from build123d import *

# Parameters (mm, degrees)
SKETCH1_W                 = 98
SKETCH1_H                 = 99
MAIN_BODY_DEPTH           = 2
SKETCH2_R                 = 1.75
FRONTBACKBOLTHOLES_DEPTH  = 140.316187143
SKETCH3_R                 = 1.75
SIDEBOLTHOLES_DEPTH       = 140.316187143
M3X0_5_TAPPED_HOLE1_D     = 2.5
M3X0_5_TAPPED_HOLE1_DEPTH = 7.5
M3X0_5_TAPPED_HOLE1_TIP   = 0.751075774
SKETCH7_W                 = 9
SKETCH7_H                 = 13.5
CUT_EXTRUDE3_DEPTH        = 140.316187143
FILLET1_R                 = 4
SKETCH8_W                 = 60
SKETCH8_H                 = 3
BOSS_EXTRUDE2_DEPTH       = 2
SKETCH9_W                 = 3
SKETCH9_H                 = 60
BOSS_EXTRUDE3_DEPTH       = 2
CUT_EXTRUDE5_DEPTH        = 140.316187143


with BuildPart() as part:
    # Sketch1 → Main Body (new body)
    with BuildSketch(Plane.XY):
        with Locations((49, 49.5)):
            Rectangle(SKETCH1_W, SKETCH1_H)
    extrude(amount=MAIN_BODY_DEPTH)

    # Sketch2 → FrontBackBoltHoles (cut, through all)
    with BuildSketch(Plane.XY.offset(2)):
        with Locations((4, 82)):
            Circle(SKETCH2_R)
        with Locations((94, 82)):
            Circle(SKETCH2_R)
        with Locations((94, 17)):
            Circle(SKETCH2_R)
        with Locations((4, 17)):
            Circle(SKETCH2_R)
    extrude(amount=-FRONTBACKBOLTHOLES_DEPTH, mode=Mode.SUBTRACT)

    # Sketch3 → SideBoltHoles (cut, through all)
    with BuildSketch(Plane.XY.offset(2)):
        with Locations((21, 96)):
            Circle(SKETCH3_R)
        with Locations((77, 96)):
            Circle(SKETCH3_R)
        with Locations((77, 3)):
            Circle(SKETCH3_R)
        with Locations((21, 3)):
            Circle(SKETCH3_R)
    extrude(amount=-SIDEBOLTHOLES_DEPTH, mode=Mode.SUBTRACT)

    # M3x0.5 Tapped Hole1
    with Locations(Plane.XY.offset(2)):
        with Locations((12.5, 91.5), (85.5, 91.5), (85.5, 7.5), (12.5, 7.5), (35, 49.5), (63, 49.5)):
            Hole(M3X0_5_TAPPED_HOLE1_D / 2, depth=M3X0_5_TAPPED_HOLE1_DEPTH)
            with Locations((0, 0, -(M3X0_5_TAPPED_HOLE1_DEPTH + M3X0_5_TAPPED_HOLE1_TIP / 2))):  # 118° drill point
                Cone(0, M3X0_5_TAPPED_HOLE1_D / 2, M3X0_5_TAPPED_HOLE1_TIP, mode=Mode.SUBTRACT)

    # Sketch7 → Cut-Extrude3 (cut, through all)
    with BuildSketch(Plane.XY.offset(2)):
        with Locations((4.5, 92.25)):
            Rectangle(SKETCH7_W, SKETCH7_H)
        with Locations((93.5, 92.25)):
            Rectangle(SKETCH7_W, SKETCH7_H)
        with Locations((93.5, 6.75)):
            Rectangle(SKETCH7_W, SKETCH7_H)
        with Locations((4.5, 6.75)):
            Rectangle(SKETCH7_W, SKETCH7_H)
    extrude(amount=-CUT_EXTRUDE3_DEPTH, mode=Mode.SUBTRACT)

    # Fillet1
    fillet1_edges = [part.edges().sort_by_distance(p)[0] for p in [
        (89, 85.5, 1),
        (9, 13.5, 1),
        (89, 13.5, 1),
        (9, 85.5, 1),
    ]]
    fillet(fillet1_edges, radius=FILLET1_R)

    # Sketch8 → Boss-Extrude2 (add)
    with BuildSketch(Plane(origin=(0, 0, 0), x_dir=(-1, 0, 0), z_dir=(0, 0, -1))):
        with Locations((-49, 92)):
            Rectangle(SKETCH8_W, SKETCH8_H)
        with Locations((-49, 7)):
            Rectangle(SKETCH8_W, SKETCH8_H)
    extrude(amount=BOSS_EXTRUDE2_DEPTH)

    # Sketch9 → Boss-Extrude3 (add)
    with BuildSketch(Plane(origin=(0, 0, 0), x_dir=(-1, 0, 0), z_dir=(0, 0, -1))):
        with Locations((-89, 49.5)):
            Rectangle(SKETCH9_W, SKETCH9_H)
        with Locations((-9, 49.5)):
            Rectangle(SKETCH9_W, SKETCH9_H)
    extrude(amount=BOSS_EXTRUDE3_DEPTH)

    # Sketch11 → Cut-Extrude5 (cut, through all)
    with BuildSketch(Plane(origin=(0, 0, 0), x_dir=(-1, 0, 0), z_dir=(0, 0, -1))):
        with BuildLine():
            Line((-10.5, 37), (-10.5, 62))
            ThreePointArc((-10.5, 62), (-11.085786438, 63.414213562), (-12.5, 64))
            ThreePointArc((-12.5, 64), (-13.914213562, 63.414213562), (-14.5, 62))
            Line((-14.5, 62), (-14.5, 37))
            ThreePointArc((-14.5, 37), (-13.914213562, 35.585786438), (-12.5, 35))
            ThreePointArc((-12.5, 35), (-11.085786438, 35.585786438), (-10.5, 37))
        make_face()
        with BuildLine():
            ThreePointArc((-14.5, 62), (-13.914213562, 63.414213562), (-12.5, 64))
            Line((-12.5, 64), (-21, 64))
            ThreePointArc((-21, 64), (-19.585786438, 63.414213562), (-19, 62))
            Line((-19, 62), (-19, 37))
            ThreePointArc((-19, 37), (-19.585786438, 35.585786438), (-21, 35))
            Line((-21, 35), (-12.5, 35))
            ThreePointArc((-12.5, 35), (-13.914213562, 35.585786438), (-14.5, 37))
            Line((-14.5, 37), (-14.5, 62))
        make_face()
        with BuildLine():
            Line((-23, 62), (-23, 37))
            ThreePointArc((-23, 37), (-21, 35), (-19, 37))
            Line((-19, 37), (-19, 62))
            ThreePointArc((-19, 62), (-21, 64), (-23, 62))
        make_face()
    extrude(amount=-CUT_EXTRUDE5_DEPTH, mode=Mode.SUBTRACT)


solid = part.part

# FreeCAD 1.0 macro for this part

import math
import FreeCAD as App
import Part
import Sketcher

V = App.Vector
Q = App.Units.Quantity


def edges_at(feature, points):
    """Names of the edges that pass closest to the given points."""
    edges = feature.Shape.Edges
    near = lambda p: min(range(len(edges)), key=lambda i: edges[i].distToShape(Part.Vertex(*p))[0])
    return sorted({f"Edge{near(p) + 1}" for p in points})


def add_polygon(sketch, points):
    """Adds a closed chain of lines whose ends are joined by coincident constraints."""
    first, n = sketch.GeometryCount, len(points)
    for a, b in zip(points, points[1:] + points[:1]):
        sketch.addGeometry(Part.LineSegment(App.Vector(*a, 0), App.Vector(*b, 0)), False)
    for i in range(n):
        sketch.addConstraint(Sketcher.Constraint("Coincident", first + i, 2, first + (i + 1) % n, 1))

doc = App.newDocument("Part")
body = doc.addObject("PartDesign::Body", "Body")

sketch1 = body.newObject("Sketcher::SketchObject", "Sketch")
sketch1.AttachmentSupport = (doc.getObject("XY_Plane"), [""])
sketch1.MapMode = "FlatFace"
add_polygon(sketch1, [(0, 99), (0, 0), (98, 0), (98, 99)])
sketch1.addConstraint(Sketcher.Constraint("Vertical", 0))
sketch1.addConstraint(Sketcher.Constraint("Horizontal", 1))
sketch1.addConstraint(Sketcher.Constraint("Vertical", 2))
sketch1.addConstraint(Sketcher.Constraint("Horizontal", 3))
sketch1.addConstraint(Sketcher.Constraint("Coincident", 0, 2, -1, 1))
sketch1.addConstraint(Sketcher.Constraint("DistanceX", 1, 1, 1, 2, Q("98 mm")))
sketch1.addConstraint(Sketcher.Constraint("DistanceY", 0, 2, 0, 1, Q("99 mm")))
pad1 = body.newObject("PartDesign::Pad", "Pad")
pad1.Profile = sketch1
pad1.Length = 2

sketch2 = body.newObject("Sketcher::SketchObject", "Sketch001")
sketch2.AttachmentSupport = (doc.getObject("XY_Plane"), [""])
sketch2.MapMode = "FlatFace"
sketch2.AttachmentOffset = App.Placement(V(0, 0, 2), App.Rotation())
sketch2.addGeometry(Part.Circle(V(4, 82, 0), V(0, 0, 1), 1.8), False)
sketch2.addGeometry(Part.Circle(V(94, 82, 0), V(0, 0, 1), 1.8), False)
sketch2.addGeometry(Part.Circle(V(94, 17, 0), V(0, 0, 1), 1.8), False)
sketch2.addGeometry(Part.Circle(V(4, 17, 0), V(0, 0, 1), 1.8), False)
sketch2.addConstraint(Sketcher.Constraint("Equal", 0, 1))
sketch2.addConstraint(Sketcher.Constraint("Equal", 1, 2))
sketch2.addConstraint(Sketcher.Constraint("Equal", 2, 3))
sketch2.addConstraint(Sketcher.Constraint("Horizontal", 0, 3, 1, 3))
sketch2.addConstraint(Sketcher.Constraint("Horizontal", 2, 3, 3, 3))
sketch2.addConstraint(Sketcher.Constraint("Vertical", 1, 3, 2, 3))
sketch2.addConstraint(Sketcher.Constraint("Vertical", 0, 3, 3, 3))
sketch2.addConstraint(Sketcher.Constraint("Diameter", 0, Q("3.5 mm")))
sketch2.addConstraint(Sketcher.Constraint("DistanceX", -1, 1, 0, 3, Q("4 mm")))
sketch2.addConstraint(Sketcher.Constraint("DistanceY", -1, 1, 0, 3, Q("82 mm")))
sketch2.addConstraint(Sketcher.Constraint("DistanceX", -1, 1, 1, 3, Q("94 mm")))
sketch2.addConstraint(Sketcher.Constraint("DistanceY", -1, 1, 2, 3, Q("17 mm")))
pocket1 = body.newObject("PartDesign::Pocket", "Pocket")
pocket1.Profile = sketch2
pocket1.Type = "ThroughAll"

sketch3 = body.newObject("Sketcher::SketchObject", "Sketch002")
sketch3.AttachmentSupport = (doc.getObject("XY_Plane"), [""])
sketch3.MapMode = "FlatFace"
sketch3.AttachmentOffset = App.Placement(V(0, 0, 2), App.Rotation())
sketch3.addGeometry(Part.Circle(V(21, 96, 0), V(0, 0, 1), 1.8), False)
sketch3.addGeometry(Part.Circle(V(77, 96, 0), V(0, 0, 1), 1.8), False)
sketch3.addGeometry(Part.Circle(V(77, 3, 0), V(0, 0, 1), 1.8), False)
sketch3.addGeometry(Part.Circle(V(21, 3, 0), V(0, 0, 1), 1.8), False)
sketch3.addConstraint(Sketcher.Constraint("Equal", 0, 1))
sketch3.addConstraint(Sketcher.Constraint("Equal", 1, 2))
sketch3.addConstraint(Sketcher.Constraint("Equal", 2, 3))
sketch3.addConstraint(Sketcher.Constraint("Horizontal", 0, 3, 1, 3))
sketch3.addConstraint(Sketcher.Constraint("Horizontal", 2, 3, 3, 3))
sketch3.addConstraint(Sketcher.Constraint("Vertical", 1, 3, 2, 3))
sketch3.addConstraint(Sketcher.Constraint("Vertical", 0, 3, 3, 3))
sketch3.addConstraint(Sketcher.Constraint("Diameter", 0, Q("3.5 mm")))
sketch3.addConstraint(Sketcher.Constraint("DistanceX", -1, 1, 0, 3, Q("21 mm")))
sketch3.addConstraint(Sketcher.Constraint("DistanceY", -1, 1, 0, 3, Q("96 mm")))
sketch3.addConstraint(Sketcher.Constraint("DistanceX", -1, 1, 1, 3, Q("77 mm")))
sketch3.addConstraint(Sketcher.Constraint("DistanceY", -1, 1, 2, 3, Q("3 mm")))
pocket2 = body.newObject("PartDesign::Pocket", "Pocket001")
pocket2.Profile = sketch3
pocket2.Type = "ThroughAll"

sketch4 = body.newObject("Sketcher::SketchObject", "Sketch003")
sketch4.AttachmentSupport = (doc.getObject("XY_Plane"), [""])
sketch4.MapMode = "FlatFace"
sketch4.AttachmentOffset = App.Placement(V(0, 0, 2), App.Rotation())
sketch4.addGeometry(Part.Circle(V(12.5, 91.5, 0), V(0, 0, 1), 1.2), False)
sketch4.addGeometry(Part.Circle(V(85.5, 91.5, 0), V(0, 0, 1), 1.2), False)
sketch4.addGeometry(Part.Circle(V(85.5, 7.5, 0), V(0, 0, 1), 1.2), False)
sketch4.addGeometry(Part.Circle(V(12.5, 7.5, 0), V(0, 0, 1), 1.2), False)
sketch4.addGeometry(Part.Circle(V(35, 49.5, 0), V(0, 0, 1), 1.2), False)
sketch4.addGeometry(Part.Circle(V(63, 49.5, 0), V(0, 0, 1), 1.2), False)
sketch4.addConstraint(Sketcher.Constraint("Equal", 0, 1))
sketch4.addConstraint(Sketcher.Constraint("Equal", 1, 2))
sketch4.addConstraint(Sketcher.Constraint("Equal", 2, 3))
sketch4.addConstraint(Sketcher.Constraint("Equal", 3, 4))
sketch4.addConstraint(Sketcher.Constraint("Equal", 4, 5))
sketch4.addConstraint(Sketcher.Constraint("Horizontal", 0, 3, 1, 3))
sketch4.addConstraint(Sketcher.Constraint("Horizontal", 2, 3, 3, 3))
sketch4.addConstraint(Sketcher.Constraint("Horizontal", 4, 3, 5, 3))
sketch4.addConstraint(Sketcher.Constraint("Vertical", 1, 3, 2, 3))
sketch4.addConstraint(Sketcher.Constraint("Vertical", 0, 3, 3, 3))
sketch4.addConstraint(Sketcher.Constraint("Diameter", 0, Q("2.5 mm")))
sketch4.addConstraint(Sketcher.Constraint("DistanceX", -1, 1, 4, 3, Q("35 mm")))
sketch4.addConstraint(Sketcher.Constraint("DistanceX", -1, 1, 5, 3, Q("63 mm")))
sketch4.addConstraint(Sketcher.Constraint("DistanceX", 0, 3, 1, 3, Q("73 mm")))
sketch4.addConstraint(Sketcher.Constraint("DistanceY", 2, 3, 1, 3, Q("84 mm")))
sketch4.addConstraint(Sketcher.Constraint("DistanceY", 4, 3, 0, 3, Q("42 mm")))
sketch4.addConstraint(Sketcher.Constraint("DistanceX", -1, 1, 0, 3, Q("12.5 mm")))
sketch4.addConstraint(Sketcher.Constraint("DistanceY", -1, 1, 0, 3, Q("91.5 mm")))
doc.recompute()
hole = body.newObject("PartDesign::Hole", "Hole")
hole.Profile = sketch4
hole.ThreadType = "None"
hole.Diameter = 2.5
hole.DepthType = "Dimension"
hole.Depth = 7.5
hole.DrillPoint = "Angled"
hole.DrillPointAngle = 118

sketch5 = body.newObject("Sketcher::SketchObject", "Sketch004")
sketch5.AttachmentSupport = (doc.getObject("XY_Plane"), [""])
sketch5.MapMode = "FlatFace"
sketch5.AttachmentOffset = App.Placement(V(0, 0, 2), App.Rotation())
add_polygon(sketch5, [(0, 99), (0, 86), (9, 86), (9, 99)])
add_polygon(sketch5, [(89, 99), (89, 86), (98, 86), (98, 99)])
add_polygon(sketch5, [(89, 14), (89, 0), (98, 0), (98, 14)])
add_polygon(sketch5, [(0, 14), (0, 0), (9, 0), (9, 14)])
sketch5.addConstraint(Sketcher.Constraint("Vertical", 0))
sketch5.addConstraint(Sketcher.Constraint("Horizontal", 1))
sketch5.addConstraint(Sketcher.Constraint("Vertical", 2))
sketch5.addConstraint(Sketcher.Constraint("Horizontal", 3))
sketch5.addConstraint(Sketcher.Constraint("Vertical", 4))
sketch5.addConstraint(Sketcher.Constraint("Horizontal", 5))
sketch5.addConstraint(Sketcher.Constraint("Vertical", 6))
sketch5.addConstraint(Sketcher.Constraint("Horizontal", 7))
sketch5.addConstraint(Sketcher.Constraint("Vertical", 8))
sketch5.addConstraint(Sketcher.Constraint("Horizontal", 9))
sketch5.addConstraint(Sketcher.Constraint("Vertical", 10))
sketch5.addConstraint(Sketcher.Constraint("Horizontal", 11))
sketch5.addConstraint(Sketcher.Constraint("Vertical", 12))
sketch5.addConstraint(Sketcher.Constraint("Horizontal", 13))
sketch5.addConstraint(Sketcher.Constraint("Vertical", 14))
sketch5.addConstraint(Sketcher.Constraint("Horizontal", 15))
sketch5.addConstraint(Sketcher.Constraint("Coincident", 12, 2, -1, 1))
sketch5.addConstraint(Sketcher.Constraint("PointOnObject", 0, 2, -2))
sketch5.addConstraint(Sketcher.Constraint("PointOnObject", 8, 2, -1))
sketch5.addConstraint(Sketcher.Constraint("Horizontal", 1, 2, 4, 2))
sketch5.addConstraint(Sketcher.Constraint("Horizontal", 3, 2, 6, 2))
sketch5.addConstraint(Sketcher.Constraint("Horizontal", 11, 2, 14, 2))
sketch5.addConstraint(Sketcher.Constraint("Vertical", 7, 2, 8, 2))
sketch5.addConstraint(Sketcher.Constraint("Vertical", 6, 2, 9, 2))
sketch5.addConstraint(Sketcher.Constraint("Vertical", 2, 2, 13, 2))
sketch5.addConstraint(Sketcher.Constraint("Equal", 3, 5))
sketch5.addConstraint(Sketcher.Constraint("Equal", 6, 8))
sketch5.addConstraint(Sketcher.Constraint("DistanceX", 1, 1, 1, 2, Q("9 mm")))
sketch5.addConstraint(Sketcher.Constraint("DistanceY", 0, 2, 0, 1, Q("13.5 mm")))
sketch5.addConstraint(Sketcher.Constraint("DistanceY", -1, 1, 2, 2, Q("99 mm")))
sketch5.addConstraint(Sketcher.Constraint("DistanceX", -1, 1, 4, 2, Q("89 mm")))
pocket3 = body.newObject("PartDesign::Pocket", "Pocket002")
pocket3.Profile = sketch5
pocket3.Type = "ThroughAll"
doc.recompute()

fillet = body.newObject("PartDesign::Fillet", "Fillet")
fillet.Base = (pocket3, edges_at(pocket3, [
    (89, 85.5, 1),
    (9, 13.5, 1),
    (89, 13.5, 1),
    (9, 85.5, 1),
]))
fillet.Radius = 4

sketch6 = body.newObject("Sketcher::SketchObject", "Sketch005")
sketch6.AttachmentSupport = (doc.getObject("XY_Plane"), [""])
sketch6.MapMode = "FlatFace"
add_polygon(sketch6, [(79, 93.5), (79, 90.5), (19, 90.5), (19, 93.5)])
add_polygon(sketch6, [(79, 8.5), (79, 5.5), (19, 5.5), (19, 8.5)])
sketch6.addConstraint(Sketcher.Constraint("Vertical", 0))
sketch6.addConstraint(Sketcher.Constraint("Horizontal", 1))
sketch6.addConstraint(Sketcher.Constraint("Vertical", 2))
sketch6.addConstraint(Sketcher.Constraint("Horizontal", 3))
sketch6.addConstraint(Sketcher.Constraint("Vertical", 4))
sketch6.addConstraint(Sketcher.Constraint("Horizontal", 5))
sketch6.addConstraint(Sketcher.Constraint("Vertical", 6))
sketch6.addConstraint(Sketcher.Constraint("Horizontal", 7))
sketch6.addConstraint(Sketcher.Constraint("Vertical", 3, 2, 4, 2))
sketch6.addConstraint(Sketcher.Constraint("Vertical", 2, 2, 5, 2))
sketch6.addConstraint(Sketcher.Constraint("Equal", 2, 4))
sketch6.addConstraint(Sketcher.Constraint("DistanceX", 1, 2, 1, 1, Q("60 mm")))
sketch6.addConstraint(Sketcher.Constraint("DistanceY", 0, 2, 0, 1, Q("3 mm")))
sketch6.addConstraint(Sketcher.Constraint("DistanceX", -1, 1, 0, 2, Q("79 mm")))
sketch6.addConstraint(Sketcher.Constraint("DistanceY", 4, 2, 0, 2, Q("85 mm")))
sketch6.addConstraint(Sketcher.Constraint("DistanceY", -1, 1, 0, 2, Q("90.5 mm")))
pad2 = body.newObject("PartDesign::Pad", "Pad001")
pad2.Profile = sketch6
pad2.Length = 2
pad2.Reversed = True

sketch7 = body.newObject("Sketcher::SketchObject", "Sketch006")
sketch7.AttachmentSupport = (doc.getObject("XY_Plane"), [""])
sketch7.MapMode = "FlatFace"
add_polygon(sketch7, [(90.5, 79.5), (90.5, 19.5), (87.5, 19.5), (87.5, 79.5)])
add_polygon(sketch7, [(10.5, 79.5), (10.5, 19.5), (7.5, 19.5), (7.5, 79.5)])
sketch7.addConstraint(Sketcher.Constraint("Vertical", 0))
sketch7.addConstraint(Sketcher.Constraint("Horizontal", 1))
sketch7.addConstraint(Sketcher.Constraint("Vertical", 2))
sketch7.addConstraint(Sketcher.Constraint("Horizontal", 3))
sketch7.addConstraint(Sketcher.Constraint("Vertical", 4))
sketch7.addConstraint(Sketcher.Constraint("Horizontal", 5))
sketch7.addConstraint(Sketcher.Constraint("Vertical", 6))
sketch7.addConstraint(Sketcher.Constraint("Horizontal", 7))
sketch7.addConstraint(Sketcher.Constraint("Horizontal", 1, 2, 4, 2))
sketch7.addConstraint(Sketcher.Constraint("Horizontal", 3, 2, 6, 2))
sketch7.addConstraint(Sketcher.Constraint("Equal", 3, 5))
sketch7.addConstraint(Sketcher.Constraint("DistanceX", 1, 2, 1, 1, Q("3 mm")))
sketch7.addConstraint(Sketcher.Constraint("DistanceY", 0, 2, 0, 1, Q("60 mm")))
sketch7.addConstraint(Sketcher.Constraint("DistanceX", 4, 2, 1, 2, Q("77 mm")))
sketch7.addConstraint(Sketcher.Constraint("DistanceX", -1, 1, 0, 2, Q("90.5 mm")))
sketch7.addConstraint(Sketcher.Constraint("DistanceY", -1, 1, 0, 2, Q("19.5 mm")))
pad3 = body.newObject("PartDesign::Pad", "Pad002")
pad3.Profile = sketch7
pad3.Length = 2
pad3.Reversed = True

sketch8 = body.newObject("Sketcher::SketchObject", "Sketch007")
sketch8.AttachmentSupport = (doc.getObject("XY_Plane"), [""])
sketch8.MapMode = "FlatFace"
sketch8.addGeometry(Part.LineSegment(V(10.5, 37, 0), V(10.5, 62, 0)), False)
sketch8.addGeometry(Part.ArcOfCircle(Part.Circle(V(12.5, 62, 0), V(0, 0, 1), 2), math.radians(90), math.radians(180)), False)
sketch8.addGeometry(Part.LineSegment(V(12.5, 64, 0), V(21, 64, 0)), False)
sketch8.addGeometry(Part.ArcOfCircle(Part.Circle(V(21, 62, 0), V(0, 0, 1), 2), math.radians(0), math.radians(90)), False)
sketch8.addGeometry(Part.LineSegment(V(23, 62, 0), V(23, 37, 0)), False)
sketch8.addGeometry(Part.ArcOfCircle(Part.Circle(V(21, 37, 0), V(0, 0, 1), 2), math.radians(-90), math.radians(0)), False)
sketch8.addGeometry(Part.LineSegment(V(21, 35, 0), V(12.5, 35, 0)), False)
sketch8.addGeometry(Part.ArcOfCircle(Part.Circle(V(12.5, 37, 0), V(0, 0, 1), 2), math.radians(-180), math.radians(-90)), False)
sketch8.addConstraint(Sketcher.Constraint("Tangent", 0, 2, 1, 2))
sketch8.addConstraint(Sketcher.Constraint("Tangent", 1, 1, 2, 1))
sketch8.addConstraint(Sketcher.Constraint("Tangent", 2, 2, 3, 2))
sketch8.addConstraint(Sketcher.Constraint("Tangent", 3, 1, 4, 1))
sketch8.addConstraint(Sketcher.Constraint("Tangent", 4, 2, 5, 2))
sketch8.addConstraint(Sketcher.Constraint("Tangent", 5, 1, 6, 1))
sketch8.addConstraint(Sketcher.Constraint("Tangent", 6, 2, 7, 2))
sketch8.addConstraint(Sketcher.Constraint("Tangent", 7, 1, 0, 1))
sketch8.addConstraint(Sketcher.Constraint("Vertical", 0))
sketch8.addConstraint(Sketcher.Constraint("Horizontal", 2))
sketch8.addConstraint(Sketcher.Constraint("Vertical", 4))
sketch8.addConstraint(Sketcher.Constraint("Horizontal", 6))
sketch8.addConstraint(Sketcher.Constraint("Equal", 1, 3))
sketch8.addConstraint(Sketcher.Constraint("Equal", 3, 5))
sketch8.addConstraint(Sketcher.Constraint("Equal", 5, 7))
sketch8.addConstraint(Sketcher.Constraint("Radius", 1, Q("2 mm")))
sketch8.addConstraint(Sketcher.Constraint("DistanceY", 0, 1, 0, 2, Q("25 mm")))
sketch8.addConstraint(Sketcher.Constraint("DistanceX", 2, 1, 2, 2, Q("8.5 mm")))
sketch8.addConstraint(Sketcher.Constraint("DistanceY", -1, 1, 1, 3, Q("62 mm")))
sketch8.addConstraint(Sketcher.Constraint("DistanceX", -1, 1, 3, 3, Q("21 mm")))
pocket4 = body.newObject("PartDesign::Pocket", "Pocket003")
pocket4.Profile = sketch8
pocket4.Type = "ThroughAll"
pocket4.Reversed = True

doc.recompute()
